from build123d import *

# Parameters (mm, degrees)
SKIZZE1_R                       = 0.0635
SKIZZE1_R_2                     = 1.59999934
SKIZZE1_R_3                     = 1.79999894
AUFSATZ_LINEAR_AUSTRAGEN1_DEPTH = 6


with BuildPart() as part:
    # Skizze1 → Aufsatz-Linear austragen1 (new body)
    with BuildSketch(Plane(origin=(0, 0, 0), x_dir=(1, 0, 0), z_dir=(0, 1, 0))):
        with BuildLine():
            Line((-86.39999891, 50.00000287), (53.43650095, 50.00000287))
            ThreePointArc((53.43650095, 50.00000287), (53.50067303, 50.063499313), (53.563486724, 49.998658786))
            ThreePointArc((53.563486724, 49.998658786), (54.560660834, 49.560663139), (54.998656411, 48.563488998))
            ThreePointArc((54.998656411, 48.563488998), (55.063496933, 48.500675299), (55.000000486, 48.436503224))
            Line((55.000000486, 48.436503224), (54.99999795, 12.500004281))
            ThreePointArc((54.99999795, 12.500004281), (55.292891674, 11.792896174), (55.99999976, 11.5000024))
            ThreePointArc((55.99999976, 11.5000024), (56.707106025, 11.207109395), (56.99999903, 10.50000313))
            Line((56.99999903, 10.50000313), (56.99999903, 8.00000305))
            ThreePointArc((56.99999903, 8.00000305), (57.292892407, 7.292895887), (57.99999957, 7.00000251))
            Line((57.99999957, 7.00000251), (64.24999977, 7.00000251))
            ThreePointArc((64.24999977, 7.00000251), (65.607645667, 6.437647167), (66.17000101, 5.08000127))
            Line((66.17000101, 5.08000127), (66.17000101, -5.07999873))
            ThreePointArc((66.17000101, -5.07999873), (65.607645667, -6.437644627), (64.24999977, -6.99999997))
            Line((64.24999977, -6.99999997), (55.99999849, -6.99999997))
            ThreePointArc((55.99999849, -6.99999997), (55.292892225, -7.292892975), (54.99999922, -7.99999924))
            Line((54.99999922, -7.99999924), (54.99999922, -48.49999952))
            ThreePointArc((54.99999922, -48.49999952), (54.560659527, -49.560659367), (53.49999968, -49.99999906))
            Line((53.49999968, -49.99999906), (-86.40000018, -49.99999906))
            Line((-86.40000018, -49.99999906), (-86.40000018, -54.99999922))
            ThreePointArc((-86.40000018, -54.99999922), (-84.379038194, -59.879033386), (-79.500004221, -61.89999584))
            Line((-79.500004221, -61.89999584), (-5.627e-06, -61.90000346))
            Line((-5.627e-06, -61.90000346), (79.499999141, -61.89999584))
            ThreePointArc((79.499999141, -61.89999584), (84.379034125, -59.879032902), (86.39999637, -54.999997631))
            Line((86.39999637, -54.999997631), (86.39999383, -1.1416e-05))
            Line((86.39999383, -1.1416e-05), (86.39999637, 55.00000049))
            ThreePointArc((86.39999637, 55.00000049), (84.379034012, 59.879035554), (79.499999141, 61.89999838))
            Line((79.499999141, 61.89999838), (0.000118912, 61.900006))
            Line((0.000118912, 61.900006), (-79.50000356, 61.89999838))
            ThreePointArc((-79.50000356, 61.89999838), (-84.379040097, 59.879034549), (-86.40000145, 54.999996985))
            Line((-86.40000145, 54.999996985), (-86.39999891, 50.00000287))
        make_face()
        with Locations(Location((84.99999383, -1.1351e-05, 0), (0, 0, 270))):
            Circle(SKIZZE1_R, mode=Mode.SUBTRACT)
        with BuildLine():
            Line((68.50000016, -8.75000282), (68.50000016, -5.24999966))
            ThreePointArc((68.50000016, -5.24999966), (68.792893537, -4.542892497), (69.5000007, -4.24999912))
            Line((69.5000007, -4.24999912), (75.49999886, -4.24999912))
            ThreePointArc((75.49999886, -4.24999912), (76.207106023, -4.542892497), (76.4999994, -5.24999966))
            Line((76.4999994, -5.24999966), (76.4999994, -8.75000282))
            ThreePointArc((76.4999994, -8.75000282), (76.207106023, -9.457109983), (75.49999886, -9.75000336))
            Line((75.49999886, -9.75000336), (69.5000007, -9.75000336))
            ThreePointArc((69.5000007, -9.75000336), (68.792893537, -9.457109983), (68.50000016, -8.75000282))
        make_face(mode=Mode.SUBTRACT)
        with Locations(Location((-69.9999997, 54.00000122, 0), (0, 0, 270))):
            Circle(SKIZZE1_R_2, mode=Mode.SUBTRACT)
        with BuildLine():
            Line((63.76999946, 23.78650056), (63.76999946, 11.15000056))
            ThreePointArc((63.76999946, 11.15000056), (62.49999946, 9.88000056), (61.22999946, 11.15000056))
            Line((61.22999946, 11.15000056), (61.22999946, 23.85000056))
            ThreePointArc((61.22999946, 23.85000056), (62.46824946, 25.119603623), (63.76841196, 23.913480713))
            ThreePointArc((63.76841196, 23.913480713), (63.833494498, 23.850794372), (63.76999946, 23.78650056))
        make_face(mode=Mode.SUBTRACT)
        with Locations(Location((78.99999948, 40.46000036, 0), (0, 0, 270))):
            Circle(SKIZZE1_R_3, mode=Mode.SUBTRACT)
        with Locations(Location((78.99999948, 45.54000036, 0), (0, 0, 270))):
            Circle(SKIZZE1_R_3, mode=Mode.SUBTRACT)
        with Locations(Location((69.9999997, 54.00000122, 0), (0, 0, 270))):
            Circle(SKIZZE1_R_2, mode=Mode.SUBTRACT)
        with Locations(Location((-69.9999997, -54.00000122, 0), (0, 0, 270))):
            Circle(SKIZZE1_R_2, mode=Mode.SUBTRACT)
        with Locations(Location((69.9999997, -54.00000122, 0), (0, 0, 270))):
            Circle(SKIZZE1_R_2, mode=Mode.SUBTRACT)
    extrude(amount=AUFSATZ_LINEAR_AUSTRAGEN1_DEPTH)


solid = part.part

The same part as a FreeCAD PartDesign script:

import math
import FreeCAD as App
import Part
import Sketcher

V = App.Vector

doc = App.newDocument("Part")
body = doc.addObject("PartDesign::Body", "Body")

# Sketch on XZ plane
sketch1 = body.newObject("Sketcher::SketchObject", "Sketch")
sketch1.AttachmentSupport = (doc.getObject("XZ_Plane"), [""])
sketch1.MapMode = "FlatFace"
sketch1.addGeometry(Part.LineSegment(V(-86.399999, -50.000003, 0), V(53.436501, -50.000003, 0)), False)
sketch1.addGeometry(Part.ArcOfCircle(Part.Circle(V(53.500001, -50.000003, 0), V(0, 0, 1), 0.0635), math.radians(-179.999999), math.radians(1.212851)), False)
sketch1.addGeometry(Part.ArcOfCircle(Part.Circle(V(53.500001, -48.500003, 0), V(0, 0, 1), 1.5), math.radians(-87.574297), math.radians(-2.425699)), False)
sketch1.addGeometry(Part.ArcOfCircle(Part.Circle(V(55, -48.500003, 0), V(0, 0, 1), 0.0635), math.radians(-91.212846), math.radians(90.000003)), False)
sketch1.addGeometry(Part.LineSegment(V(55, -48.436503, 0), V(54.999998, -12.500004, 0)), False)
sketch1.addGeometry(Part.ArcOfCircle(Part.Circle(V(56, -12.500004, 0), V(0, 0, 1), 1.000002), math.radians(90), math.radians(180.000004)), False)
sketch1.addGeometry(Part.ArcOfCircle(Part.Circle(V(56, -10.500003, 0), V(0, 0, 1), 0.999999), math.radians(-90), math.radians(0)), False)
sketch1.addGeometry(Part.LineSegment(V(56.999999, -10.500003, 0), V(56.999999, -8.000003, 0)), False)
sketch1.addGeometry(Part.ArcOfCircle(Part.Circle(V(58, -8.000003, 0), V(0, 0, 1), 1.000001), math.radians(90), math.radians(180)), False)
sketch1.addGeometry(Part.LineSegment(V(58, -7.000003, 0), V(64.25, -7.000003, 0)), False)
sketch1.addGeometry(Part.ArcOfCircle(Part.Circle(V(64.25, -5.080001, 0), V(0, 0, 1), 1.920001), math.radians(-90), math.radians(0)), False)
sketch1.addGeometry(Part.LineSegment(V(66.170001, -5.080001, 0), V(66.170001, 5.079999, 0)), False)
sketch1.addGeometry(Part.ArcOfCircle(Part.Circle(V(64.25, 5.079999, 0), V(0, 0, 1), 1.920001), math.radians(0), math.radians(90)), False)
sketch1.addGeometry(Part.LineSegment(V(64.25, 7, 0), V(55.999998, 7, 0)), False)
sketch1.addGeometry(Part.ArcOfCircle(Part.Circle(V(55.999998, 7.999999, 0), V(0, 0, 1), 0.999999), math.radians(180), math.radians(270)), False)
sketch1.addGeometry(Part.LineSegment(V(54.999999, 7.999999, 0), V(54.999999, 48.5, 0)), False)
sketch1.addGeometry(Part.ArcOfCircle(Part.Circle(V(53.5, 48.5, 0), V(0, 0, 1), 1.5), math.radians(0), math.radians(90)), False)
sketch1.addGeometry(Part.LineSegment(V(53.5, 49.999999, 0), V(-86.4, 49.999999, 0)), False)
sketch1.addGeometry(Part.LineSegment(V(-86.4, 49.999999, 0), V(-86.4, 54.999999, 0)), False)
sketch1.addGeometry(Part.ArcOfCircle(Part.Circle(V(-79.500004, 54.999999, 0), V(0, 0, 1), 6.899997), math.radians(90.000005), math.radians(180)), False)
sketch1.addGeometry(Part.LineSegment(V(-79.500004, 61.899996, 0), V(-0.000006, 61.900003, 0)), False)
sketch1.addGeometry(Part.LineSegment(V(-0.000006, 61.900003, 0), V(79.499999, 61.899996, 0)), False)
sketch1.addGeometry(Part.ArcOfCircle(Part.Circle(V(79.499998, 54.999998, 0), V(0, 0, 1), 6.899998), math.radians(-0.000003), math.radians(89.999995)), False)
sketch1.addGeometry(Part.LineSegment(V(86.399996, 54.999998, 0), V(86.399994, 0.000011, 0)), False)
sketch1.addGeometry(Part.LineSegment(V(86.399994, 0.000011, 0), V(86.399996, -55, 0)), False)
sketch1.addGeometry(Part.ArcOfCircle(Part.Circle(V(79.499998, -55, 0), V(0, 0, 1), 6.899998), math.radians(-89.999995), math.radians(0)), False)
sketch1.addGeometry(Part.LineSegment(V(79.499999, -61.899998, 0), V(0.000119, -61.900006, 0)), False)
sketch1.addGeometry(Part.LineSegment(V(0.000119, -61.900006, 0), V(-79.500004, -61.899998, 0)), False)
sketch1.addGeometry(Part.ArcOfCircle(Part.Circle(V(-79.500004, -55, 0), V(0, 0, 1), 6.899998), math.radians(179.999971), math.radians(270)), False)
sketch1.addGeometry(Part.LineSegment(V(-86.400001, -54.999997, 0), V(-86.399999, -50.000003, 0)), False)
sketch1.addGeometry(Part.Circle(V(-70, 54.000001, 0), V(0, 0, 1), 1.599999), False)
sketch1.addGeometry(Part.Circle(V(70, 54.000001, 0), V(0, 0, 1), 1.599999), False)
sketch1.addGeometry(Part.ArcOfCircle(Part.Circle(V(69.500001, 8.750003, 0), V(0, 0, 1), 1.000001), math.radians(90), math.radians(180)), False)
sketch1.addGeometry(Part.LineSegment(V(68.5, 8.750003, 0), V(68.5, 5.25, 0)), False)
sketch1.addGeometry(Part.ArcOfCircle(Part.Circle(V(69.500001, 5.25, 0), V(0, 0, 1), 1.000001), math.radians(180), math.radians(270)), False)
sketch1.addGeometry(Part.LineSegment(V(69.500001, 4.249999, 0), V(75.499999, 4.249999, 0)), False)
sketch1.addGeometry(Part.ArcOfCircle(Part.Circle(V(75.499999, 5.25, 0), V(0, 0, 1), 1.000001), math.radians(-90), math.radians(0)), False)
sketch1.addGeometry(Part.LineSegment(V(76.499999, 5.25, 0), V(76.499999, 8.750003, 0)), False)
sketch1.addGeometry(Part.ArcOfCircle(Part.Circle(V(75.499999, 8.750003, 0), V(0, 0, 1), 1.000001), math.radians(0), math.radians(90)), False)
sketch1.addGeometry(Part.LineSegment(V(75.499999, 9.750003, 0), V(69.500001, 9.750003, 0)), False)
sketch1.addGeometry(Part.Circle(V(84.999994, 0.000011, 0), V(0, 0, 1), 0.0635), False)
sketch1.addGeometry(Part.Circle(V(-70, -54.000001, 0), V(0, 0, 1), 1.599999), False)
sketch1.addGeometry(Part.ArcOfCircle(Part.Circle(V(63.769999, -23.850001, 0), V(0, 0, 1), 0.0635), math.radians(-91.432544), math.radians(90)), False)
sketch1.addGeometry(Part.LineSegment(V(63.769999, -23.786501, 0), V(63.769999, -11.150001, 0)), False)
sketch1.addGeometry(Part.ArcOfCircle(Part.Circle(V(62.499999, -11.150001, 0), V(0, 0, 1), 1.27), math.radians(0), math.radians(180)), False)
sketch1.addGeometry(Part.LineSegment(V(61.229999, -11.150001, 0), V(61.229999, -23.850001, 0)), False)
sketch1.addGeometry(Part.ArcOfCircle(Part.Circle(V(62.499999, -23.850001, 0), V(0, 0, 1), 1.27), math.radians(180), math.radians(357.134913)), False)
sketch1.addGeometry(Part.Circle(V(78.999999, -40.46, 0), V(0, 0, 1), 1.799999), False)
sketch1.addGeometry(Part.Circle(V(78.999999, -45.54, 0), V(0, 0, 1), 1.799999), False)
sketch1.addGeometry(Part.Circle(V(70, -54.000001, 0), V(0, 0, 1), 1.599999), False)
sketch1.addConstraint(Sketcher.Constraint("Coincident", 0, 2, 1, 1))
sketch1.addConstraint(Sketcher.Constraint("Coincident", 1, 2, 2, 1))
sketch1.addConstraint(Sketcher.Constraint("Coincident", 2, 2, 3, 1))
sketch1.addConstraint(Sketcher.Constraint("Coincident", 3, 2, 4, 1))
sketch1.addConstraint(Sketcher.Constraint("Tangent", 4, 2, 5, 2))
sketch1.addConstraint(Sketcher.Constraint("Tangent", 5, 1, 6, 1))
sketch1.addConstraint(Sketcher.Constraint("Tangent", 6, 2, 7, 1))
sketch1.addConstraint(Sketcher.Constraint("Tangent", 7, 2, 8, 2))
sketch1.addConstraint(Sketcher.Constraint("Tangent", 8, 1, 9, 1))
sketch1.addConstraint(Sketcher.Constraint("Tangent", 9, 2, 10, 1))
sketch1.addConstraint(Sketcher.Constraint("Tangent", 10, 2, 11, 1))
sketch1.addConstraint(Sketcher.Constraint("Tangent", 11, 2, 12, 1))
sketch1.addConstraint(Sketcher.Constraint("Tangent", 12, 2, 13, 1))
sketch1.addConstraint(Sketcher.Constraint("Tangent", 13, 2, 14, 2))
sketch1.addConstraint(Sketcher.Constraint("Tangent", 14, 1, 15, 1))
sketch1.addConstraint(Sketcher.Constraint("Tangent", 15, 2, 16, 1))
sketch1.addConstraint(Sketcher.Constraint("Tangent", 16, 2, 17, 1))
sketch1.addConstraint(Sketcher.Constraint("Coincident", 17, 2, 18, 1))
sketch1.addConstraint(Sketcher.Constraint("Tangent", 18, 2, 19, 2))
sketch1.addConstraint(Sketcher.Constraint("Tangent", 19, 1, 20, 1))
sketch1.addConstraint(Sketcher.Constraint("Coincident", 20, 2, 21, 1))
sketch1.addConstraint(Sketcher.Constraint("Tangent", 21, 2, 22, 2))
sketch1.addConstraint(Sketcher.Constraint("Tangent", 22, 1, 23, 1))
sketch1.addConstraint(Sketcher.Constraint("Coincident", 23, 2, 24, 1))
sketch1.addConstraint(Sketcher.Constraint("Tangent", 24, 2, 25, 2))
sketch1.addConstraint(Sketcher.Constraint("Tangent", 25, 1, 26, 1))
sketch1.addConstraint(Sketcher.Constraint("Coincident", 26, 2, 27, 1))
sketch1.addConstraint(Sketcher.Constraint("Tangent", 27, 2, 28, 2))
sketch1.addConstraint(Sketcher.Constraint("Tangent", 28, 1, 29, 1))
sketch1.addConstraint(Sketcher.Constraint("Coincident", 29, 2, 0, 1))
sketch1.addConstraint(Sketcher.Constraint("Tangent", 32, 2, 33, 1))
sketch1.addConstraint(Sketcher.Constraint("Tangent", 33, 2, 34, 1))
sketch1.addConstraint(Sketcher.Constraint("Tangent", 34, 2, 35, 1))
sketch1.addConstraint(Sketcher.Constraint("Tangent", 35, 2, 36, 1))
sketch1.addConstraint(Sketcher.Constraint("Tangent", 36, 2, 37, 1))
sketch1.addConstraint(Sketcher.Constraint("Tangent", 37, 2, 38, 1))
sketch1.addConstraint(Sketcher.Constraint("Tangent", 38, 2, 39, 1))
sketch1.addConstraint(Sketcher.Constraint("Tangent", 39, 2, 32, 1))
sketch1.addConstraint(Sketcher.Constraint("Coincident", 42, 2, 43, 1))
sketch1.addConstraint(Sketcher.Constraint("Tangent", 43, 2, 44, 1))
sketch1.addConstraint(Sketcher.Constraint("Tangent", 44, 2, 45, 1))
sketch1.addConstraint(Sketcher.Constraint("Tangent", 45, 2, 46, 1))
sketch1.addConstraint(Sketcher.Constraint("Coincident", 46, 2, 42, 1))
sketch1.addConstraint(Sketcher.Constraint("Horizontal", 0))
sketch1.addConstraint(Sketcher.Constraint("Vertical", 7))
sketch1.addConstraint(Sketcher.Constraint("Horizontal", 9))
sketch1.addConstraint(Sketcher.Constraint("Vertical", 11))
sketch1.addConstraint(Sketcher.Constraint("Horizontal", 13))
sketch1.addConstraint(Sketcher.Constraint("Vertical", 15))
sketch1.addConstraint(Sketcher.Constraint("Horizontal", 17))
sketch1.addConstraint(Sketcher.Constraint("Vertical", 18))
sketch1.addConstraint(Sketcher.Constraint("Vertical", 33))
sketch1.addConstraint(Sketcher.Constraint("Horizontal", 35))
sketch1.addConstraint(Sketcher.Constraint("Vertical", 37))
sketch1.addConstraint(Sketcher.Constraint("Horizontal", 39))
sketch1.addConstraint(Sketcher.Constraint("Vertical", 43))
sketch1.addConstraint(Sketcher.Constraint("Vertical", 45))
sketch1.addConstraint(Sketcher.Constraint("Equal", 1, 3))
sketch1.addConstraint(Sketcher.Constraint("Equal", 6, 8))
sketch1.addConstraint(Sketcher.Constraint("Equal", 10, 12))
sketch1.addConstraint(Sketcher.Constraint("Equal", 8, 14))
sketch1.addConstraint(Sketcher.Constraint("Equal", 2, 16))
sketch1.addConstraint(Sketcher.Constraint("Equal", 19, 22))
sketch1.addConstraint(Sketcher.Constraint("Equal", 22, 25))
sketch1.addConstraint(Sketcher.Constraint("Equal", 25, 28))
sketch1.addConstraint(Sketcher.Constraint("Equal", 30, 31))
sketch1.addConstraint(Sketcher.Constraint("Equal", 14, 32))
sketch1.addConstraint(Sketcher.Constraint("Equal", 32, 34))
sketch1.addConstraint(Sketcher.Constraint("Equal", 34, 36))
sketch1.addConstraint(Sketcher.Constraint("Equal", 36, 38))
sketch1.addConstraint(Sketcher.Constraint("Equal", 3, 40))
sketch1.addConstraint(Sketcher.Constraint("Equal", 31, 41))
sketch1.addConstraint(Sketcher.Constraint("Equal", 40, 42))
sketch1.addConstraint(Sketcher.Constraint("Equal", 44, 46))
sketch1.addConstraint(Sketcher.Constraint("Equal", 47, 48))
sketch1.addConstraint(Sketcher.Constraint("Equal", 41, 49))
sketch1.addConstraint(Sketcher.Constraint("Symmetric", 19, 3, 25, 3, -1, 1))
sketch1.addConstraint(Sketcher.Constraint("Symmetric", 22, 3, 28, 3, -1, 1))
sketch1.addConstraint(Sketcher.Constraint("Symmetric", 31, 3, 41, 3, -1, 1))
sketch1.addConstraint(Sketcher.Constraint("Symmetric", 30, 3, 49, 3, -1, 1))
sketch1.addConstraint(Sketcher.Constraint("Symmetric", 19, 3, 22, 3, -2))
sketch1.addConstraint(Sketcher.Constraint("Symmetric", 30, 3, 31, 3, -2))
sketch1.addConstraint(Sketcher.Constraint("Symmetric", 2, 3, 16, 3, -1))
sketch1.addConstraint(Sketcher.Constraint("Symmetric", 17, 2, 29, 2, -1))
sketch1.addConstraint(Sketcher.Constraint("Perpendicular", 4, 20))
sketch1.addConstraint(Sketcher.Constraint("Parallel", 20, 21))
sketch1.addConstraint(Sketcher.Constraint("Perpendicular", 21, 23))
sketch1.addConstraint(Sketcher.Constraint("Perpendicular", 24, 26))
sketch1.addConstraint(Sketcher.Constraint("Horizontal", 2, 3, 3, 3))
sketch1.addConstraint(Sketcher.Constraint("Horizontal", 42, 3, 46, 3))
sketch1.addConstraint(Sketcher.Constraint("Horizontal", 1, 3, 0, 2))
sketch1.addConstraint(Sketcher.Constraint("Horizontal", 40, 3, 23, 2))
sketch1.addConstraint(Sketcher.Constraint("Vertical", 1, 3, 2, 3))
sketch1.addConstraint(Sketcher.Constraint("Vertical", 5, 3, 6, 3))
sketch1.addConstraint(Sketcher.Constraint("Vertical", 6, 3, 14, 3))
sketch1.addConstraint(Sketcher.Constraint("Vertical", 47, 3, 48, 3))
sketch1.addConstraint(Sketcher.Constraint("Vertical", 4, 2, 14, 1))
sketch1.addConstraint(Sketcher.Constraint("Radius", 5, 1.000002))
sketch1.addConstraint(Sketcher.Constraint("Diameter", 30, 3.199999))
sketch1.addConstraint(Sketcher.Constraint("Radius", 2, 1.5))
sketch1.addConstraint(Sketcher.Constraint("DistanceX", 35, 1, 35, 2, 5.999998))
sketch1.addConstraint(Sketcher.Constraint("DistanceY", 18, 1, 18, 2, 5.0))
sketch1.addConstraint(Sketcher.Constraint("Radius", 10, 1.920001))
sketch1.addConstraint(Sketcher.Constraint("Radius", 44, 1.27))
sketch1.addConstraint(Sketcher.Constraint("Diameter", 40, 0.127))
sketch1.addConstraint(Sketcher.Constraint("DistanceX", 17, 2, 17, 1, 139.9))
sketch1.addConstraint(Sketcher.Constraint("DistanceY", 7, 1, 7, 2, 2.5))
sketch1.addConstraint(Sketcher.Constraint("DistanceY", 15, 1, 15, 2, 40.5))
sketch1.addConstraint(Sketcher.Constraint("DistanceY", 45, 2, 45, 1, 12.7))
sketch1.addConstraint(Sketcher.Constraint("DistanceX", -1, 1, 3, 3, 55.0))
sketch1.addConstraint(Sketcher.Constraint("DistanceX", -1, 1, 5, 3, 56.0))
sketch1.addConstraint(Sketcher.Constraint("DistanceY", -1, 1, 14, 3, 7.999999))
sketch1.addConstraint(Sketcher.Constraint("DistanceX", 30, 3, -1, 1, 70.0))
sketch1.addConstraint(Sketcher.Constraint("DistanceY", -1, 1, 30, 3, 54.000001))
sketch1.addConstraint(Sketcher.Constraint("DistanceX", -1, 1, 47, 3, 78.999999))
sketch1.addConstraint(Sketcher.Constraint("Distance", 20, 79.499999))
sketch1.addConstraint(Sketcher.Constraint("DistanceX", 9, 1, 9, 2, 6.25))
sketch1.addConstraint(Sketcher.Constraint("DistanceY", 11, 1, 11, 2, 10.16))
sketch1.addConstraint(Sketcher.Constraint("DistanceX", -1, 1, 22, 3, 79.499998))
sketch1.addConstraint(Sketcher.Constraint("DistanceX", -1, 1, 32, 3, 69.500001))
sketch1.addConstraint(Sketcher.Constraint("DistanceX", -1, 1, 44, 3, 62.499999))
sketch1.addConstraint(Sketcher.Constraint("DistanceY", -1, 1, 34, 3, 5.25))
sketch1.addConstraint(Sketcher.Constraint("DistanceX", -1, 1, 42, 3, 63.769999))
sketch1.addConstraint(Sketcher.Constraint("DistanceY", 42, 3, -1, 1, 23.850001))
sketch1.addConstraint(Sketcher.Constraint("DistanceY", 47, 3, -1, 1, 40.46))
sketch1.addConstraint(Sketcher.Constraint("DistanceY", 48, 3, -1, 1, 45.54))
sketch1.addConstraint(Sketcher.Constraint("Diameter", 47, 3.599998))
sketch1.addConstraint(Sketcher.Constraint("Distance", 24, 55.000012))
sketch1.addConstraint(Sketcher.Constraint("Distance", 26, 79.49988))
sketch1.addConstraint(Sketcher.Constraint("DistanceY", 33, 2, 33, 1, 3.500003))
sketch1.addConstraint(Sketcher.Constraint("DistanceX", -1, 1, 40, 3, 84.999994))
pad1 = body.newObject("PartDesign::Pad", "Pad")
pad1.Profile = sketch1
pad1.Length = 6
pad1.Reversed = True

doc.recompute()
